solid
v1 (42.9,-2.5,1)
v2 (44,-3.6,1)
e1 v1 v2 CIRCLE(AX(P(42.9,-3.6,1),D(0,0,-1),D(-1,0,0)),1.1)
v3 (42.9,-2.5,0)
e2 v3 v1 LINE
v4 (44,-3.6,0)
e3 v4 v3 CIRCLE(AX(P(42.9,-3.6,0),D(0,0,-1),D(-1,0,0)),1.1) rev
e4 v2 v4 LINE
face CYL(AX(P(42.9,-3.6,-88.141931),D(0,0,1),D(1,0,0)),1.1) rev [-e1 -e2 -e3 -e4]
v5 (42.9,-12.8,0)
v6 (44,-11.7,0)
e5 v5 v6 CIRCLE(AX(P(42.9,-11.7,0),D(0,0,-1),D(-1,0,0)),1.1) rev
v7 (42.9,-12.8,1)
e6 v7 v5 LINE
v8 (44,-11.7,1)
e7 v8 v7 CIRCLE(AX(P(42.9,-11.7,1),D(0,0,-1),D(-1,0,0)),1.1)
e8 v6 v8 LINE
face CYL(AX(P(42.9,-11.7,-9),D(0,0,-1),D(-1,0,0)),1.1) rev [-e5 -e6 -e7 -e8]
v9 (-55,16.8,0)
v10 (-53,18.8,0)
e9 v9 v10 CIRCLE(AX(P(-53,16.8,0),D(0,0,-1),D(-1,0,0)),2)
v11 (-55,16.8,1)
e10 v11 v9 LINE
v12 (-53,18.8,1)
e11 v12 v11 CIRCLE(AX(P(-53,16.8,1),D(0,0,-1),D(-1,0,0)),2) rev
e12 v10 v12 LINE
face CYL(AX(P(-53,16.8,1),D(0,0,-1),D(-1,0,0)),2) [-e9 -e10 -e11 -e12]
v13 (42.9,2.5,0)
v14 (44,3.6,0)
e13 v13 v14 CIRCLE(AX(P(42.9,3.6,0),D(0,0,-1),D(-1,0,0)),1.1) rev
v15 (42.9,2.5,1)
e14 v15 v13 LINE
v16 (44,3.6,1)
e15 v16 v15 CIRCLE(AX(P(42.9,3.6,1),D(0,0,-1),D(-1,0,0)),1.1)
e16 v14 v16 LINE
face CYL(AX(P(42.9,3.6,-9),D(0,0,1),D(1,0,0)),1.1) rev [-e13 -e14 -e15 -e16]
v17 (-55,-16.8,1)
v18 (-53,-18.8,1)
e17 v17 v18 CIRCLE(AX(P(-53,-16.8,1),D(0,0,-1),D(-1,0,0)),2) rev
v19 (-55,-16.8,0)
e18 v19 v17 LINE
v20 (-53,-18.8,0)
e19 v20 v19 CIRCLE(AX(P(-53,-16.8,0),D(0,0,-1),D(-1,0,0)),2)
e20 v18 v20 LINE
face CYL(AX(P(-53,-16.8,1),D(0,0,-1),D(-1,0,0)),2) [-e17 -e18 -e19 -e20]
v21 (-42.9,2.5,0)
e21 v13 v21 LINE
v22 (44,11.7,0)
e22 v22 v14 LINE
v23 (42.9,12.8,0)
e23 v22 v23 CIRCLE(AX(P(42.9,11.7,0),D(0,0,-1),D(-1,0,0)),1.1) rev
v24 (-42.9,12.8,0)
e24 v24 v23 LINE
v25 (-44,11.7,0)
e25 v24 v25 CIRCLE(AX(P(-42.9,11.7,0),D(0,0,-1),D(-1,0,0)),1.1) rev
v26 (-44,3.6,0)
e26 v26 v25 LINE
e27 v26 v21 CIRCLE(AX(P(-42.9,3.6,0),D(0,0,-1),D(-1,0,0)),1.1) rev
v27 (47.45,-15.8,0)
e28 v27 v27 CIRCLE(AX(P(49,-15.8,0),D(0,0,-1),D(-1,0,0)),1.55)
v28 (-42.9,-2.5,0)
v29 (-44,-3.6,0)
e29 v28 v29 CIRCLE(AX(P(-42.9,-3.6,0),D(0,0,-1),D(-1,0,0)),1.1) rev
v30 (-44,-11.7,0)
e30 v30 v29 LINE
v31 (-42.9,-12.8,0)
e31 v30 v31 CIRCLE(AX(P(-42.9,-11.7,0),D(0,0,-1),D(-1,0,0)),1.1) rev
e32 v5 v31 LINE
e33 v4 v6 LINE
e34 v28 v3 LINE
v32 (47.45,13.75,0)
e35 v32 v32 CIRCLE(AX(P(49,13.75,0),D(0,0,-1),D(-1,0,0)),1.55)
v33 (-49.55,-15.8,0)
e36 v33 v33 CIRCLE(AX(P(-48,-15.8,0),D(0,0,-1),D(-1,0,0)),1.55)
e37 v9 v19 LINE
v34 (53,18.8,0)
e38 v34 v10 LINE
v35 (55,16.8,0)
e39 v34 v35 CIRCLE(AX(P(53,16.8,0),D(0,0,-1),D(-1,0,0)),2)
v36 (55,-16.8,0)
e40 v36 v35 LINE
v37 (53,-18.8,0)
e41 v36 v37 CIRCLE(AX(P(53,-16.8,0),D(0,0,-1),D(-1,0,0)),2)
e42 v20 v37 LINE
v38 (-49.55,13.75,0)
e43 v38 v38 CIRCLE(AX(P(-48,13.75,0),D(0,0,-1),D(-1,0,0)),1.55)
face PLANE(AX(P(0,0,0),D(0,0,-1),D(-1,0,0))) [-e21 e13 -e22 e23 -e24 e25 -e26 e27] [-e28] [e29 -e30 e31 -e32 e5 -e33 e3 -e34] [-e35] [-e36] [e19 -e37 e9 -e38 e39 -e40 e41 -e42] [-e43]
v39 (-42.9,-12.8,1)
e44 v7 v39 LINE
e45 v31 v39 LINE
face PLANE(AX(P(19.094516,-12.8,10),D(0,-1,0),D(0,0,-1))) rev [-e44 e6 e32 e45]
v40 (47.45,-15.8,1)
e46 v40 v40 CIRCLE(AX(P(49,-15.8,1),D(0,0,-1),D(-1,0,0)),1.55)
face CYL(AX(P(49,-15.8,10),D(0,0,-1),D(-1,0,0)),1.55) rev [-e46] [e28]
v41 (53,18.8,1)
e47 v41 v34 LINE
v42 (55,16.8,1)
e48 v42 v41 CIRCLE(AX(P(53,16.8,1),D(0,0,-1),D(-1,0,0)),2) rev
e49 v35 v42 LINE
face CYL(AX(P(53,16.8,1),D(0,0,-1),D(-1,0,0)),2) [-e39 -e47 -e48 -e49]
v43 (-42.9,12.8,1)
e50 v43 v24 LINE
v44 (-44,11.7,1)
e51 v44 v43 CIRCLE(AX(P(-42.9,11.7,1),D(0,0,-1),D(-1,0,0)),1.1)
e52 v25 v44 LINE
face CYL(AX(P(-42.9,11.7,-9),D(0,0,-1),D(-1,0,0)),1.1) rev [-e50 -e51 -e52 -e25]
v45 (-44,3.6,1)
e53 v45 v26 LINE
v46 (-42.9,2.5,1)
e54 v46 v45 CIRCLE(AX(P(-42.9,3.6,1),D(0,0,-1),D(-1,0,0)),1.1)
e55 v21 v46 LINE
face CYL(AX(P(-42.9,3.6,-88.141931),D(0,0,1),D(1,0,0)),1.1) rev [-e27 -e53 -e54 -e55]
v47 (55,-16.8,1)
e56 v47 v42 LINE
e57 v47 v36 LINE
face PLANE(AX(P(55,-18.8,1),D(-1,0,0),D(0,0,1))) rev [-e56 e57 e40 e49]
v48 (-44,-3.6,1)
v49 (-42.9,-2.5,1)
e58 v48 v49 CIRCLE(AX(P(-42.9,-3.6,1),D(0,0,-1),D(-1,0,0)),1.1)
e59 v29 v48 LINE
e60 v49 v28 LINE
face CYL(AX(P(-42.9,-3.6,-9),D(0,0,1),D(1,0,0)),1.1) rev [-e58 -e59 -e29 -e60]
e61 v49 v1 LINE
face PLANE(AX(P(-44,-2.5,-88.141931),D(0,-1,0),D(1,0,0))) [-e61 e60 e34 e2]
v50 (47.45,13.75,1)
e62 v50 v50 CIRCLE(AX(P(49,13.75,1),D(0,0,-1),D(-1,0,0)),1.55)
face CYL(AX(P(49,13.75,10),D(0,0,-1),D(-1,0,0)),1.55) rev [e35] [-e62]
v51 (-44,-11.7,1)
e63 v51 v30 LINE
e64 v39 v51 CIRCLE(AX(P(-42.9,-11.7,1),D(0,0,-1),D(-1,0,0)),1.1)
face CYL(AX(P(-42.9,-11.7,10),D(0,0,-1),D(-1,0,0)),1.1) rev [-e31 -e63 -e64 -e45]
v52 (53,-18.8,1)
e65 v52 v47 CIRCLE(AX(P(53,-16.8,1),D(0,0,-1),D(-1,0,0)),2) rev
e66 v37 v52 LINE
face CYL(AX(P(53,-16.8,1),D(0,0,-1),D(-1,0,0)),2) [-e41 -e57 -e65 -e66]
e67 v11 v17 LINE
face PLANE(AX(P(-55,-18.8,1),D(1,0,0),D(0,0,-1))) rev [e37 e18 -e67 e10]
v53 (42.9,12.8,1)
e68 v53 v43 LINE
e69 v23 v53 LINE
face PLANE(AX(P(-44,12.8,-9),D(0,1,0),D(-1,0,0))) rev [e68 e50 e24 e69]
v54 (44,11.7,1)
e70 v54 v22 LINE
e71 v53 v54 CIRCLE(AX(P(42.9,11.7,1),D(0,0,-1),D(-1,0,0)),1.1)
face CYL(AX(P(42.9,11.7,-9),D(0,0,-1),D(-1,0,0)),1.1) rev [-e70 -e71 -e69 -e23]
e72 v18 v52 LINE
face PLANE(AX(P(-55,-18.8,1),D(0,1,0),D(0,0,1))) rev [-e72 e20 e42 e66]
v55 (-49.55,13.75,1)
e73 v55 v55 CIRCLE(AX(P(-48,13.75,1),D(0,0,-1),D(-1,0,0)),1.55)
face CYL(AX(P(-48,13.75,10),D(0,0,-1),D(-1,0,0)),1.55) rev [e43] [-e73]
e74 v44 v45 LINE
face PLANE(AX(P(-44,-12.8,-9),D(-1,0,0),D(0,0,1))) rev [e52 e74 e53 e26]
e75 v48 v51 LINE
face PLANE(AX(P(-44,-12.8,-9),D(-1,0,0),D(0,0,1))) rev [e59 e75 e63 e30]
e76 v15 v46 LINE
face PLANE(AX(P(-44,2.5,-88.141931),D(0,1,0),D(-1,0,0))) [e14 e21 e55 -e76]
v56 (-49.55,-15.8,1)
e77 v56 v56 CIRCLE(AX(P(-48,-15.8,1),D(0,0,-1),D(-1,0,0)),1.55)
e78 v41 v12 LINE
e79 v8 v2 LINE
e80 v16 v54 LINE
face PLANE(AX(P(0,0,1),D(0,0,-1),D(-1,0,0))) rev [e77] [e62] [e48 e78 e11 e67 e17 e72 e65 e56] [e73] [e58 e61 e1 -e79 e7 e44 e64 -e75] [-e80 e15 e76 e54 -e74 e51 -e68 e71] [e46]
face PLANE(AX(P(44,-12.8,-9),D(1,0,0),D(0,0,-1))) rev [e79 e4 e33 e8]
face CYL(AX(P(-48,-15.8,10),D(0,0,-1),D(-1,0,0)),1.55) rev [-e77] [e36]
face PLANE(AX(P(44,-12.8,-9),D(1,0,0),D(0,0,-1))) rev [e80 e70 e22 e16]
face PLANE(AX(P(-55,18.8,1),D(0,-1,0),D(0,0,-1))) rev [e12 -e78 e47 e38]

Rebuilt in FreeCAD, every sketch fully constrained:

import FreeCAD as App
import Part
import Sketcher

V = App.Vector
Q = App.Units.Quantity


def edges_at(feature, points):
    """Names of the edges that pass closest to the given points."""
    edges = feature.Shape.Edges
    near = lambda p: min(range(len(edges)), key=lambda i: edges[i].distToShape(Part.Vertex(*p))[0])
    return sorted({f"Edge{near(p) + 1}" for p in points})

doc = App.newDocument("Part")
body = doc.addObject("PartDesign::Body", "Body")

# Sketch on XY plane
sketch1 = doc.addObject("Sketcher::SketchObject", "Sketch")
body.addObject(sketch1)
sketch1.AttachmentSupport = (doc.XY_Plane, [""])
sketch1.MapMode = "FlatFace"
sketch1.addGeometry([
    Part.LineSegment(V(-55, 19, 0), V(-55, -19, 0)),
    Part.LineSegment(V(-55, -19, 0), V(55, -19, 0)),
    Part.LineSegment(V(55, -19, 0), V(55, 19, 0)),
    Part.LineSegment(V(55, 19, 0), V(-55, 19, 0)),
], False)
sketch1.addConstraint([
    Sketcher.Constraint("Coincident", 0, 2, 1, 1),
    Sketcher.Constraint("Coincident", 1, 2, 2, 1),
    Sketcher.Constraint("Coincident", 2, 2, 3, 1),
    Sketcher.Constraint("Coincident", 3, 2, 0, 1),
    Sketcher.Constraint("Vertical", 0),
    Sketcher.Constraint("Horizontal", 1),
    Sketcher.Constraint("Vertical", 2),
    Sketcher.Constraint("Horizontal", 3),
    Sketcher.Constraint("Symmetric", 0, 2, 2, 2, -1, 1),
    Sketcher.Constraint("DistanceX", 1, 1, 1, 2, Q("110 mm")),
    Sketcher.Constraint("DistanceY", 0, 2, 0, 1, Q("37.6 mm")),
])
pad1 = doc.addObject("PartDesign::Pad", "Pad")
body.addObject(pad1)
pad1.Profile = sketch1
pad1.Length = 1

# Sketch on XY plane
sketch2 = doc.addObject("Sketcher::SketchObject", "Sketch001")
body.addObject(sketch2)
sketch2.AttachmentSupport = (doc.XY_Plane, [""])
sketch2.MapMode = "FlatFace"
sketch2.addGeometry([
    Part.Circle(V(-48, 13.8, 0), V(0, 0, 1), 1.6),
    Part.Circle(V(-48, -15.8, 0), V(0, 0, 1), 1.6),
    Part.Circle(V(49, -15.8, 0), V(0, 0, 1), 1.6),
    Part.Circle(V(49, 13.8, 0), V(0, 0, 1), 1.6),
], False)
sketch2.addConstraint([
    Sketcher.Constraint("Equal", 0, 1),
    Sketcher.Constraint("Equal", 1, 2),
    Sketcher.Constraint("Equal", 2, 3),
    Sketcher.Constraint("Horizontal", 1, 3, 2, 3),
    Sketcher.Constraint("Horizontal", 0, 3, 3, 3),
    Sketcher.Constraint("Vertical", 0, 3, 1, 3),
    Sketcher.Constraint("Vertical", 2, 3, 3, 3),
    Sketcher.Constraint("Diameter", 0, Q("3.1 mm")),
    Sketcher.Constraint("DistanceX", 0, 3, -1, 1, Q("48 mm")),
    Sketcher.Constraint("DistanceX", -1, 1, 2, 3, Q("49 mm")),
    Sketcher.Constraint("DistanceY", 1, 3, -1, 1, Q("15.8 mm")),
    Sketcher.Constraint("DistanceY", -1, 1, 0, 3, Q("13.75 mm")),
])
pocket1 = doc.addObject("PartDesign::Pocket", "Pocket")
body.addObject(pocket1)
pocket1.Profile = sketch2
pocket1.Length = 10
pocket1.Reversed = True
doc.recompute()

fillet = doc.addObject("PartDesign::Fillet", "Fillet")
body.addObject(fillet)
fillet.Base = (pocket1, edges_at(pocket1, [
    (55, -18.8, 0.5),
    (-55, -18.8, 0.5),
    (-55, 18.8, 0.5),
    (55, 18.8, 0.5),
]))
fillet.Radius = 2

# Sketch on XY plane
sketch3 = doc.addObject("Sketcher::SketchObject", "Sketch002")
body.addObject(sketch3)
sketch3.AttachmentSupport = (doc.XY_Plane, [""])
sketch3.MapMode = "FlatFace"
sketch3.addGeometry([
    Part.LineSegment(V(19, 5, 0), V(19, -13, 0)),
    Part.LineSegment(V(19, -13, 0), V(-38, -13, 0)),
    Part.LineSegment(V(-38, -13, 0), V(-38, 5, 0)),
    Part.LineSegment(V(-38, 5, 0), V(19, 5, 0)),
], False)
sketch3.addConstraint([
    Sketcher.Constraint("Coincident", 0, 2, 1, 1),
    Sketcher.Constraint("Coincident", 1, 2, 2, 1),
    Sketcher.Constraint("Coincident", 2, 2, 3, 1),
    Sketcher.Constraint("Coincident", 3, 2, 0, 1),
    Sketcher.Constraint("Vertical", 0),
    Sketcher.Constraint("Horizontal", 1),
    Sketcher.Constraint("Vertical", 2),
    Sketcher.Constraint("Horizontal", 3),
    Sketcher.Constraint("DistanceY", 0, 2, 0, 1, Q("18 mm")),
    Sketcher.Constraint("DistanceX", 1, 2, 1, 1, Q("57.5 mm")),
    Sketcher.Constraint("DistanceY", 0, 2, -1, 1, Q("12.8 mm")),
    Sketcher.Constraint("DistanceX", -1, 1, 0, 2, Q("19.094516 mm")),
])
pocket2 = doc.addObject("PartDesign::Pocket", "Pocket001")
body.addObject(pocket2)
pocket2.Profile = sketch3
pocket2.Length = 10
pocket2.Reversed = True

# Sketch on XY plane
sketch4 = doc.addObject("Sketcher::SketchObject", "Sketch003")
body.addObject(sketch4)
sketch4.AttachmentSupport = (doc.XY_Plane, [""])
sketch4.MapMode = "FlatFace"
sketch4.addGeometry([
    Part.LineSegment(V(11.1, 5.2, 0), V(11.1, -12.8, 0)),  # 0
    Part.LineSegment(V(11.1, -12.8, 0), V(9.1, -12.8, 0)),  # 1
    Part.LineSegment(V(9.1, -12.8, 0), V(9.1, 5.2, 0)),  # 2
    Part.LineSegment(V(9.1, 5.2, 0), V(11.1, 5.2, 0)),  # 3
    Part.LineSegment(V(1.1, 5.2, 0), V(1.1, -12.8, 0)),  # 4
    Part.LineSegment(V(1.1, -12.8, 0), V(-0.9, -12.8, 0)),  # 5
    Part.LineSegment(V(-0.9, -12.8, 0), V(-0.9, 5.2, 0)),  # 6
    Part.LineSegment(V(-0.9, 5.2, 0), V(1.1, 5.2, 0)),  # 7
    Part.LineSegment(V(-8.9, 5.2, 0), V(-8.9, -12.8, 0)),  # 8
    Part.LineSegment(V(-8.9, -12.8, 0), V(-10.9, -12.8, 0)),  # 9
    Part.LineSegment(V(-10.9, -12.8, 0), V(-10.9, 5.2, 0)),  # 10
    Part.LineSegment(V(-10.9, 5.2, 0), V(-8.9, 5.2, 0)),  # 11
    Part.LineSegment(V(-18.9, 5.2, 0), V(-18.9, -12.8, 0)),  # 12
    Part.LineSegment(V(-18.9, -12.8, 0), V(-20.9, -12.8, 0)),  # 13
    Part.LineSegment(V(-20.9, -12.8, 0), V(-20.9, 5.2, 0)),  # 14
    Part.LineSegment(V(-20.9, 5.2, 0), V(-18.9, 5.2, 0)),  # 15
    Part.LineSegment(V(-28.9, 5.2, 0), V(-28.9, -12.8, 0)),  # 16
    Part.LineSegment(V(-28.9, -12.8, 0), V(-30.9, -12.8, 0)),  # 17
    Part.LineSegment(V(-30.9, -12.8, 0), V(-30.9, 5.2, 0)),  # 18
    Part.LineSegment(V(-30.9, 5.2, 0), V(-28.9, 5.2, 0)),  # 19
], False)
sketch4.addConstraint([
    Sketcher.Constraint("Coincident", 0, 2, 1, 1),
    Sketcher.Constraint("Coincident", 1, 2, 2, 1),
    Sketcher.Constraint("Coincident", 2, 2, 3, 1),
    Sketcher.Constraint("Coincident", 3, 2, 0, 1),
    Sketcher.Constraint("Coincident", 4, 2, 5, 1),
    Sketcher.Constraint("Coincident", 5, 2, 6, 1),
    Sketcher.Constraint("Coincident", 6, 2, 7, 1),
    Sketcher.Constraint("Coincident", 7, 2, 4, 1),
    Sketcher.Constraint("Coincident", 8, 2, 9, 1),
    Sketcher.Constraint("Coincident", 9, 2, 10, 1),
    Sketcher.Constraint("Coincident", 10, 2, 11, 1),
    Sketcher.Constraint("Coincident", 11, 2, 8, 1),
    Sketcher.Constraint("Coincident", 12, 2, 13, 1),
    Sketcher.Constraint("Coincident", 13, 2, 14, 1),
    Sketcher.Constraint("Coincident", 14, 2, 15, 1),
    Sketcher.Constraint("Coincident", 15, 2, 12, 1),
    Sketcher.Constraint("Coincident", 16, 2, 17, 1),
    Sketcher.Constraint("Coincident", 17, 2, 18, 1),
    Sketcher.Constraint("Coincident", 18, 2, 19, 1),
    Sketcher.Constraint("Coincident", 19, 2, 16, 1),
    Sketcher.Constraint("Vertical", 0),
    Sketcher.Constraint("Horizontal", 1),
    Sketcher.Constraint("Vertical", 2),
    Sketcher.Constraint("Horizontal", 3),
    Sketcher.Constraint("Vertical", 4),
    Sketcher.Constraint("Horizontal", 5),
    Sketcher.Constraint("Vertical", 6),
    Sketcher.Constraint("Horizontal", 7),
    Sketcher.Constraint("Vertical", 8),
    Sketcher.Constraint("Horizontal", 9),
    Sketcher.Constraint("Vertical", 10),
    Sketcher.Constraint("Horizontal", 11),
    Sketcher.Constraint("Vertical", 12),
    Sketcher.Constraint("Horizontal", 13),
    Sketcher.Constraint("Vertical", 14),
    Sketcher.Constraint("Horizontal", 15),
    Sketcher.Constraint("Vertical", 16),
    Sketcher.Constraint("Horizontal", 17),
    Sketcher.Constraint("Vertical", 18),
    Sketcher.Constraint("Horizontal", 19),
    Sketcher.Constraint("Horizontal", 1, 2, 4, 2),
    Sketcher.Constraint("Horizontal", 3, 2, 6, 2),
    Sketcher.Constraint("Horizontal", 5, 2, 8, 2),
    Sketcher.Constraint("Horizontal", 7, 2, 10, 2),
    Sketcher.Constraint("Horizontal", 9, 2, 12, 2),
    Sketcher.Constraint("Horizontal", 11, 2, 14, 2),
    Sketcher.Constraint("Horizontal", 13, 2, 16, 2),
    Sketcher.Constraint("Horizontal", 15, 2, 18, 2),
    Sketcher.Constraint("Equal", 3, 5),
    Sketcher.Constraint("Equal", 7, 9),
    Sketcher.Constraint("Equal", 11, 13),
    Sketcher.Constraint("Equal", 15, 17),
    Sketcher.Constraint("DistanceX", 1, 2, 1, 1, Q("2 mm")),
    Sketcher.Constraint("DistanceY", 0, 2, 0, 1, Q("18 mm")),
    Sketcher.Constraint("DistanceX", 4, 2, 1, 2, Q("8 mm")),
    Sketcher.Constraint("DistanceX", 8, 2, 5, 2, Q("8 mm")),
    Sketcher.Constraint("DistanceX", 12, 2, 9, 2, Q("8 mm")),
    Sketcher.Constraint("DistanceX", 16, 2, 13, 2, Q("8 mm")),
    Sketcher.Constraint("DistanceY", 0, 2, -1, 1, Q("12.8 mm")),
    Sketcher.Constraint("DistanceX", -1, 1, 0, 2, Q("11.094516 mm")),
])
pad2 = doc.addObject("PartDesign::Pad", "Pad001")
body.addObject(pad2)
pad2.Profile = sketch4
pad2.Length = 1
doc.recompute()

fillet2 = doc.addObject("PartDesign::Fillet", "Fillet001")
body.addObject(fillet2)
fillet2.Base = (pad2, edges_at(pad2, [
    (-8.905, -12.8, 0.5),
    (-8.905, 5.2, 0.5),
    (-10.905, 5.2, 0.5),
    (-10.905, -12.8, 0.5),
    (-18.905, -12.8, 0.5),
    (-18.905, 5.2, 0.5),
    (-20.905, 5.2, 0.5),
    (-20.905, -12.8, 0.5),
    (-28.905, -12.8, 0.5),
    (-28.905, 5.2, 0.5),
    (-30.905, 5.2, 0.5),
    (-30.905, -12.8, 0.5),
    (-38.405, 5.2, 0.5),
    (-38.405, -12.8, 0.5),
    (19.095, -12.8, 0.5),
    (19.095, 5.2, 0.5),
    (11.095, 5.2, 0.5),
    (9.095, 5.2, 0.5),
    (9.095, -12.8, 0.5),
    (11.095, -12.8, 0.5),
    (1.095, -12.8, 0.5),
    (1.095, 5.2, 0.5),
    (-0.905, 5.2, 0.5),
    (-0.905, -12.8, 0.5),
]))
fillet2.Radius = 1.5

# Sketch on XY plane
sketch5 = doc.addObject("Sketcher::SketchObject", "Sketch004")
body.addObject(sketch5)
sketch5.AttachmentSupport = (doc.XY_Plane, [""])
sketch5.MapMode = "FlatFace"
sketch5.AttachmentOffset = App.Placement(V(0, 0, 1), App.Rotation())
sketch5.addGeometry([
    Part.LineSegment(V(-44, 13, 0), V(-44, -13, 0)),
    Part.LineSegment(V(-44, -13, 0), V(44, -13, 0)),
    Part.LineSegment(V(44, -13, 0), V(44, 13, 0)),
    Part.LineSegment(V(44, 13, 0), V(-44, 13, 0)),
], False)
sketch5.addConstraint([
    Sketcher.Constraint("Coincident", 0, 2, 1, 1),
    Sketcher.Constraint("Coincident", 1, 2, 2, 1),
    Sketcher.Constraint("Coincident", 2, 2, 3, 1),
    Sketcher.Constraint("Coincident", 3, 2, 0, 1),
    Sketcher.Constraint("Vertical", 0),
    Sketcher.Constraint("Horizontal", 1),
    Sketcher.Constraint("Vertical", 2),
    Sketcher.Constraint("Horizontal", 3),
    Sketcher.Constraint("Symmetric", 0, 2, 2, 2, -1, 1),
    Sketcher.Constraint("DistanceX", 1, 1, 1, 2, Q("88 mm")),
    Sketcher.Constraint("DistanceY", 0, 2, 0, 1, Q("25.6 mm")),
])
pocket3 = doc.addObject("PartDesign::Pocket", "Pocket002")
body.addObject(pocket3)
pocket3.Profile = sketch5
pocket3.Length = 10

# Sketch on XY plane
sketch6 = doc.addObject("Sketcher::SketchObject", "Sketch005")
body.addObject(sketch6)
sketch6.AttachmentSupport = (doc.XY_Plane, [""])
sketch6.MapMode = "FlatFace"
sketch6.AttachmentOffset = App.Placement(V(0, 0, 1), App.Rotation())
sketch6.addGeometry([
    Part.LineSegment(V(-44, 2, 0), V(-44, -2, 0)),
    Part.LineSegment(V(-44, -2, 0), V(44, -2, 0)),
    Part.LineSegment(V(44, -2, 0), V(44, 2, 0)),
    Part.LineSegment(V(44, 2, 0), V(-44, 2, 0)),
], False)
sketch6.addConstraint([
    Sketcher.Constraint("Coincident", 0, 2, 1, 1),
    Sketcher.Constraint("Coincident", 1, 2, 2, 1),
    Sketcher.Constraint("Coincident", 2, 2, 3, 1),
    Sketcher.Constraint("Coincident", 3, 2, 0, 1),
    Sketcher.Constraint("Vertical", 0),
    Sketcher.Constraint("Horizontal", 1),
    Sketcher.Constraint("Vertical", 2),
    Sketcher.Constraint("Horizontal", 3),
    Sketcher.Constraint("Symmetric", 0, 2, 2, 2, -1, 1),
    Sketcher.Constraint("DistanceX", 1, 1, 1, 2, Q("88 mm")),
    Sketcher.Constraint("DistanceY", 0, 2, 0, 1, Q("5 mm")),
])
pad3 = doc.addObject("PartDesign::Pad", "Pad002")
body.addObject(pad3)
pad3.Profile = sketch6
pad3.Length = 1
pad3.Reversed = True
doc.recompute()

fillet3 = doc.addObject("PartDesign::Fillet", "Fillet002")
body.addObject(fillet3)
fillet3.Base = (pad3, edges_at(pad3, [
    (44, -12.8, 0.5),
    (44, 12.8, 0.5),
    (-44, -12.8, 0.5),
    (-44, 12.8, 0.5),
    (-44, 2.5, 0.5),
    (-44, -2.5, 0.5),
    (44, -2.5, 0.5),
    (44, 2.5, 0.5),
]))
fillet3.Radius = 1.1

doc.recompute()
